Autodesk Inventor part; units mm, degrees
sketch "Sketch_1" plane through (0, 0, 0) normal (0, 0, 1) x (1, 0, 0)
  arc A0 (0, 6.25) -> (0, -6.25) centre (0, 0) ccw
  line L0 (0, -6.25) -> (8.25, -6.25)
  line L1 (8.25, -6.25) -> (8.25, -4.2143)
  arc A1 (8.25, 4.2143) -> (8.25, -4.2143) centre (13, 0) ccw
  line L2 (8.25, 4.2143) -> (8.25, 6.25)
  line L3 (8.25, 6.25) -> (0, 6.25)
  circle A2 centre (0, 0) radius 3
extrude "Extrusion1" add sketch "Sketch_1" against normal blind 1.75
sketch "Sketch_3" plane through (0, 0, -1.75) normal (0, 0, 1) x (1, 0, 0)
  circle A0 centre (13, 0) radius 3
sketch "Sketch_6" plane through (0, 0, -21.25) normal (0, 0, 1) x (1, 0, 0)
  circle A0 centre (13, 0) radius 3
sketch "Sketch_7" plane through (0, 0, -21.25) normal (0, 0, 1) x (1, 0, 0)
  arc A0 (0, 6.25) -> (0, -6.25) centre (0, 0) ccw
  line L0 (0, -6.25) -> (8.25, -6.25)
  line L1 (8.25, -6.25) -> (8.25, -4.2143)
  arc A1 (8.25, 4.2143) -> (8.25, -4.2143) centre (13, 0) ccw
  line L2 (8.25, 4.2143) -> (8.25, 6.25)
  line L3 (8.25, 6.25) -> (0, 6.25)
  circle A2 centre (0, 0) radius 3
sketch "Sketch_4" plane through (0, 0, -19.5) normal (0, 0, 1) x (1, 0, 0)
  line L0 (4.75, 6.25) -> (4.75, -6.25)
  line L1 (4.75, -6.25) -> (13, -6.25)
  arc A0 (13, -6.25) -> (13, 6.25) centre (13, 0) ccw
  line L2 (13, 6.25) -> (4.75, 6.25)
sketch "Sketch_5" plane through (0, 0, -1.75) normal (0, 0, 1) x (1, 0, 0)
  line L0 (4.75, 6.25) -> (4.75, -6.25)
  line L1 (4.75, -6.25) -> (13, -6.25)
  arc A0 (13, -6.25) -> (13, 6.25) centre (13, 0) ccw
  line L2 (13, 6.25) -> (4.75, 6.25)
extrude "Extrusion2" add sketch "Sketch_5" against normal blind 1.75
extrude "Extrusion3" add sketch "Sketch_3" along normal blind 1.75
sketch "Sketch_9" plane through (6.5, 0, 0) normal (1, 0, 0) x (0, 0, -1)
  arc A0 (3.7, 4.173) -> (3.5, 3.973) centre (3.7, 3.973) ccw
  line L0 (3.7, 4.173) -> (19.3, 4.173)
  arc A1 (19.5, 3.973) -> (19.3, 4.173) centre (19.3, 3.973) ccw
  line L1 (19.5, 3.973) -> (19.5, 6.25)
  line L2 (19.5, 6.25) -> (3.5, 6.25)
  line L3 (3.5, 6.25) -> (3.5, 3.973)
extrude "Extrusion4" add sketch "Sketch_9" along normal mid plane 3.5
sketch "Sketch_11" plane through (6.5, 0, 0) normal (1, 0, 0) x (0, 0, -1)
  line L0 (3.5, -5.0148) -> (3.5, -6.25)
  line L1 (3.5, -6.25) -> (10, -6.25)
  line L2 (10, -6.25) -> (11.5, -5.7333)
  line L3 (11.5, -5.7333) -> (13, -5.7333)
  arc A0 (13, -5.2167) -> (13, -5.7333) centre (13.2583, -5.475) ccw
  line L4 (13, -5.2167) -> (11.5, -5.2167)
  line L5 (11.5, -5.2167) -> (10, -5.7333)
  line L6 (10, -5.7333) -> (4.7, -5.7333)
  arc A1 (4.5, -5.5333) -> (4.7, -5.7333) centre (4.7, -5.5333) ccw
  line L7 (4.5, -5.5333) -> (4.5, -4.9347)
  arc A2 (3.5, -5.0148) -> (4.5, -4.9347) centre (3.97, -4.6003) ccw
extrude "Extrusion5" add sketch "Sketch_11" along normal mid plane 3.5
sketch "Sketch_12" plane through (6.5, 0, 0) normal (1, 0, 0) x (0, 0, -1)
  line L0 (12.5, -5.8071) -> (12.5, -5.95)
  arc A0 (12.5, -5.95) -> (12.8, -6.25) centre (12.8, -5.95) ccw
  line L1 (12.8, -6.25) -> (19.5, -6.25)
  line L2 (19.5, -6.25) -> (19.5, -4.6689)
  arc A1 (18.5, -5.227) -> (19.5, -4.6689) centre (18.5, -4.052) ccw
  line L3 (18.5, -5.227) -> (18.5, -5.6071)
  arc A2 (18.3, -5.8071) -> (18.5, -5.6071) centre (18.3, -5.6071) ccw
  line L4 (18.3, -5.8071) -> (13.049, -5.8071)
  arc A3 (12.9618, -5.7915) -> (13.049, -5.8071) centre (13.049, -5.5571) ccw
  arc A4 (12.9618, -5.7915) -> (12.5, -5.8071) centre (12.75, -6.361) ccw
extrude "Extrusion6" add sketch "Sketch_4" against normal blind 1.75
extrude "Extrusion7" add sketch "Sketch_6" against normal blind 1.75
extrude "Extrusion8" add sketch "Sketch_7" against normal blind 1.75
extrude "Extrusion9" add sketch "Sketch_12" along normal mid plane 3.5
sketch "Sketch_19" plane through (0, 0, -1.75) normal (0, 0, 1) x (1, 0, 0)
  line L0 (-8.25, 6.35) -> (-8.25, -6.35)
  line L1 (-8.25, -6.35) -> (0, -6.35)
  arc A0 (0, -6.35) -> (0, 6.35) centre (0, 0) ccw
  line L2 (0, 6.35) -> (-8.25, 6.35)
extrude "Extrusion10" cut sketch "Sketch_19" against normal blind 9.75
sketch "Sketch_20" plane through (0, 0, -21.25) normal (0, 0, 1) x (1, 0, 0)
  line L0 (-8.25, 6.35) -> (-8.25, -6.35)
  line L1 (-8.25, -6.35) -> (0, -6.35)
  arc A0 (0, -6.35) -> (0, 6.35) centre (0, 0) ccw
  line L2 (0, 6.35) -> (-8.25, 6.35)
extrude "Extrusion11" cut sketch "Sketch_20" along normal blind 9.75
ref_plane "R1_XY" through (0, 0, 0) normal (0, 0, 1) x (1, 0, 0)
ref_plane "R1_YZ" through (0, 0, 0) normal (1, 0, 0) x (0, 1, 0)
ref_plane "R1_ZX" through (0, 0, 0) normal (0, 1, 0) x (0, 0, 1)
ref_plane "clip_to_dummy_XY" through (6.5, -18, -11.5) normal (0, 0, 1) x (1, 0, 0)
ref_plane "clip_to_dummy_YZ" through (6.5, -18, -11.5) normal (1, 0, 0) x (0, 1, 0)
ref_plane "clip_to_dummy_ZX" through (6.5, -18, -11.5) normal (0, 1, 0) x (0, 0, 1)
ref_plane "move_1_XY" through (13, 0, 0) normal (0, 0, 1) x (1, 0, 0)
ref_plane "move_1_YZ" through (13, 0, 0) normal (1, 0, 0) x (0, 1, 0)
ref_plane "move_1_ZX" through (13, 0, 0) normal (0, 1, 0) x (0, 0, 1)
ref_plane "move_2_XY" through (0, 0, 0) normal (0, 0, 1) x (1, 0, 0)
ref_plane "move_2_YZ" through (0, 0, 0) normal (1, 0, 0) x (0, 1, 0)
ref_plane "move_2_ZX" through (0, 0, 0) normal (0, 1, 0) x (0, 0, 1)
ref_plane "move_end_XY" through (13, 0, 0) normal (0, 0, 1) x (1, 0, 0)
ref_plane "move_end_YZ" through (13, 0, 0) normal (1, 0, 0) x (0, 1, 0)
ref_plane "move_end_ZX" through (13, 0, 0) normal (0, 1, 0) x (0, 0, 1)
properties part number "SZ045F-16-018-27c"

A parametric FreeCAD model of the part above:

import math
import FreeCAD as App
import Part
import Sketcher

doc = App.newDocument("Part")
body = doc.addObject("PartDesign::Body", "Body")

# Sketch on XY plane
sketch1 = doc.addObject("Sketcher::SketchObject", "Sketch")
body.addObject(sketch1)
sketch1.AttachmentSupport = (doc.XY_Plane, [""])
sketch1.MapMode = "FlatFace"
sketch1.addGeometry([
    Part.LineSegment(App.Vector(8.2, 6.2, 0), App.Vector(0, 6.2, 0)),  # 0
    Part.ArcOfCircle(Part.Circle(App.Vector(0, 0, 0), App.Vector(0, 0, 1), 6.2), math.radians(90), math.radians(270)),  # 1
    Part.LineSegment(App.Vector(0, -6.2, 0), App.Vector(8.2, -6.2, 0)),  # 2
    Part.LineSegment(App.Vector(8.2, -6.2, 0), App.Vector(8.2, -4.2, 0)),  # 3
    Part.ArcOfCircle(Part.Circle(App.Vector(13, 0, 0), App.Vector(0, 0, 1), 6.4), math.radians(138), math.radians(222)),  # 4
    Part.LineSegment(App.Vector(8.2, 4.2, 0), App.Vector(8.2, 6.2, 0)),  # 5
    Part.Circle(App.Vector(0, 0, 0), App.Vector(0, 0, 1), 3),  # 6
], False)
sketch1.addConstraint([
    Sketcher.Constraint("Tangent", 0, 2, 1, 1),
    Sketcher.Constraint("Tangent", 1, 2, 2, 1),
    Sketcher.Constraint("Coincident", 2, 2, 3, 1),
    Sketcher.Constraint("Coincident", 3, 2, 4, 2),
    Sketcher.Constraint("Coincident", 4, 1, 5, 1),
    Sketcher.Constraint("Coincident", 5, 2, 0, 1),
    Sketcher.Constraint("Horizontal", 0),
    Sketcher.Constraint("Horizontal", 2),
    Sketcher.Constraint("Vertical", 3),
    Sketcher.Constraint("Vertical", 5),
    Sketcher.Constraint("Coincident", 1, 3, -1, 1),
    Sketcher.Constraint("Coincident", 6, 3, -1, 1),
    Sketcher.Constraint("Symmetric", 3, 2, 4, 1, -1),
    Sketcher.Constraint("Diameter", 6, 6.0),
    Sketcher.Constraint("Radius", 1, 6.25),
    Sketcher.Constraint("Radius", 4, 6.35),
    Sketcher.Constraint("DistanceX", -1, 1, 4, 3, 13.0),
    Sketcher.Constraint("DistanceX", 0, 2, 0, 1, 8.25),
])
pad1 = doc.addObject("PartDesign::Pad", "Pad")
body.addObject(pad1)
pad1.Profile = sketch1
pad1.Length = 1.75
pad1.Reversed = True

# Sketch on XY plane
sketch2 = doc.addObject("Sketcher::SketchObject", "Sketch001")
body.addObject(sketch2)
sketch2.AttachmentSupport = (doc.XY_Plane, [""])
sketch2.MapMode = "FlatFace"
sketch2.AttachmentOffset = App.Placement(App.Vector(0, 0, -1.75), App.Rotation())
sketch2.addGeometry([
    Part.LineSegment(App.Vector(13, 6, 0), App.Vector(5, 6, 0)),
    Part.LineSegment(App.Vector(5, 6, 0), App.Vector(5, -6, 0)),
    Part.LineSegment(App.Vector(5, -6, 0), App.Vector(13, -6, 0)),
    Part.ArcOfCircle(Part.Circle(App.Vector(13, 0, 0), App.Vector(0, 0, 1), 6), math.radians(-90), math.radians(90)),
], False)
sketch2.addConstraint([
    Sketcher.Constraint("Coincident", 0, 2, 1, 1),
    Sketcher.Constraint("Coincident", 1, 2, 2, 1),
    Sketcher.Constraint("Tangent", 2, 2, 3, 1),
    Sketcher.Constraint("Tangent", 3, 2, 0, 1),
    Sketcher.Constraint("Horizontal", 0),
    Sketcher.Constraint("Vertical", 1),
    Sketcher.Constraint("Horizontal", 2),
    Sketcher.Constraint("PointOnObject", 3, 3, -1),
    Sketcher.Constraint("Radius", 3, 6.25),
    Sketcher.Constraint("DistanceX", -1, 1, 3, 3, 13.0),
    Sketcher.Constraint("DistanceX", 0, 2, 0, 1, 8.25),
])
pad2 = doc.addObject("PartDesign::Pad", "Pad001")
body.addObject(pad2)
pad2.Profile = sketch2
pad2.Length = 1.75
pad2.Reversed = True

# Sketch on XY plane
sketch3 = doc.addObject("Sketcher::SketchObject", "Sketch002")
body.addObject(sketch3)
sketch3.AttachmentSupport = (doc.XY_Plane, [""])
sketch3.MapMode = "FlatFace"
sketch3.AttachmentOffset = App.Placement(App.Vector(0, 0, -1.75), App.Rotation())
sketch3.addGeometry(Part.Circle(App.Vector(13, 0, 0), App.Vector(0, 0, 1), 3), False)
sketch3.addConstraint([
    Sketcher.Constraint("PointOnObject", 0, 3, -1),
    Sketcher.Constraint("Diameter", 0, 6.0),
    Sketcher.Constraint("DistanceX", -1, 1, 0, 3, 13.0),
])
pad3 = doc.addObject("PartDesign::Pad", "Pad002")
body.addObject(pad3)
pad3.Profile = sketch3
pad3.Length = 1.75

# Sketch on YZ plane
sketch4 = doc.addObject("Sketcher::SketchObject", "Sketch003")
body.addObject(sketch4)
sketch4.AttachmentSupport = (doc.YZ_Plane, [""])
sketch4.MapMode = "FlatFace"
sketch4.AttachmentOffset = App.Placement(App.Vector(0, 0, 6.5), App.Rotation())
sketch4.addGeometry([
    Part.ArcOfCircle(Part.Circle(App.Vector(3.97, -3.7, 0), App.Vector(0, 0, 1), 0.2), math.radians(0), math.radians(90)),  # 0
    Part.LineSegment(App.Vector(4.17, -3.7, 0), App.Vector(4.17, -19.3, 0)),  # 1
    Part.ArcOfCircle(Part.Circle(App.Vector(3.97, -19.3, 0), App.Vector(0, 0, 1), 0.2), math.radians(-90), math.radians(0)),  # 2
    Part.LineSegment(App.Vector(3.97, -19.5, 0), App.Vector(6.25, -19.5, 0)),  # 3
    Part.LineSegment(App.Vector(6.25, -19.5, 0), App.Vector(6.25, -3.5, 0)),  # 4
    Part.LineSegment(App.Vector(6.25, -3.5, 0), App.Vector(3.97, -3.5, 0)),  # 5
], False)
sketch4.addConstraint([
    Sketcher.Constraint("Tangent", 0, 1, 1, 1),
    Sketcher.Constraint("Tangent", 1, 2, 2, 2),
    Sketcher.Constraint("Tangent", 2, 1, 3, 1),
    Sketcher.Constraint("Coincident", 3, 2, 4, 1),
    Sketcher.Constraint("Coincident", 4, 2, 5, 1),
    Sketcher.Constraint("Tangent", 5, 2, 0, 2),
    Sketcher.Constraint("Vertical", 1),
    Sketcher.Constraint("Horizontal", 3),
    Sketcher.Constraint("Vertical", 4),
    Sketcher.Constraint("Horizontal", 5),
    Sketcher.Constraint("Equal", 0, 2),
    Sketcher.Constraint("Radius", 0, 0.2),
    Sketcher.Constraint("DistanceY", 4, 1, 4, 2, 16.0),
    Sketcher.Constraint("DistanceY", 0, 3, -1, 1, 3.7),
    Sketcher.Constraint("DistanceX", 3, 1, 3, 2, 2.277),
    Sketcher.Constraint("DistanceX", -1, 1, 3, 2, 6.25),
])
pad4 = doc.addObject("PartDesign::Pad", "Pad003")
body.addObject(pad4)
pad4.Profile = sketch4
pad4.Length = 3.5
pad4.Midplane = True

# Sketch on YZ plane
sketch5 = doc.addObject("Sketcher::SketchObject", "Sketch004")
body.addObject(sketch5)
sketch5.AttachmentSupport = (doc.YZ_Plane, [""])
sketch5.MapMode = "FlatFace"
sketch5.AttachmentOffset = App.Placement(App.Vector(0, 0, 6.5), App.Rotation())
sketch5.addGeometry([
    Part.ArcOfCircle(Part.Circle(App.Vector(-4.6, -3.97, 0), App.Vector(0, 0, 1), 0.63), math.radians(131), math.radians(238)),  # 0
    Part.LineSegment(App.Vector(-5.01, -3.5, 0), App.Vector(-6.25, -3.5, 0)),  # 1
    Part.LineSegment(App.Vector(-6.25, -3.5, 0), App.Vector(-6.25, -10, 0)),  # 2
    Part.LineSegment(App.Vector(-6.25, -10, 0), App.Vector(-5.73, -11.5, 0)),  # 3
    Part.LineSegment(App.Vector(-5.73, -11.5, 0), App.Vector(-5.73, -13, 0)),  # 4
    Part.ArcOfCircle(Part.Circle(App.Vector(-5.47, -13.26, 0), App.Vector(0, 0, 1), 0.37), math.radians(45), math.radians(135)),  # 5
    Part.LineSegment(App.Vector(-5.22, -13, 0), App.Vector(-5.22, -11.5, 0)),  # 6
    Part.LineSegment(App.Vector(-5.22, -11.5, 0), App.Vector(-5.73, -10, 0)),  # 7
    Part.LineSegment(App.Vector(-5.73, -10, 0), App.Vector(-5.73, -4.7, 0)),  # 8
    Part.ArcOfCircle(Part.Circle(App.Vector(-5.53, -4.7, 0), App.Vector(0, 0, 1), 0.2), math.radians(90), math.radians(180)),  # 9
    Part.LineSegment(App.Vector(-5.53, -4.5, 0), App.Vector(-4.93, -4.5, 0)),  # 10
], False)
sketch5.addConstraint([
    Sketcher.Constraint("Coincident", 0, 1, 1, 1),
    Sketcher.Constraint("Coincident", 1, 2, 2, 1),
    Sketcher.Constraint("Coincident", 2, 2, 3, 1),
    Sketcher.Constraint("Coincident", 3, 2, 4, 1),
    Sketcher.Constraint("Coincident", 4, 2, 5, 2),
    Sketcher.Constraint("Coincident", 5, 1, 6, 1),
    Sketcher.Constraint("Coincident", 6, 2, 7, 1),
    Sketcher.Constraint("Coincident", 7, 2, 8, 1),
    Sketcher.Constraint("Tangent", 8, 2, 9, 2),
    Sketcher.Constraint("Tangent", 9, 1, 10, 1),
    Sketcher.Constraint("Coincident", 10, 2, 0, 2),
    Sketcher.Constraint("Horizontal", 1),
    Sketcher.Constraint("Vertical", 2),
    Sketcher.Constraint("Vertical", 4),
    Sketcher.Constraint("Vertical", 6),
    Sketcher.Constraint("Vertical", 8),
    Sketcher.Constraint("Horizontal", 10),
    Sketcher.Constraint("Parallel", 3, 7),
    Sketcher.Constraint("Horizontal", 4, 2, 5, 1),
    Sketcher.Constraint("Horizontal", 3, 2, 6, 2),
    Sketcher.Constraint("Horizontal", 2, 2, 7, 2),
    Sketcher.Constraint("Vertical", 4, 2, 7, 2),
    Sketcher.Constraint("Radius", 9, 0.2),
    Sketcher.Constraint("DistanceY", 2, 2, 2, 1, 6.5),
    Sketcher.Constraint("DistanceY", 4, 2, 4, 1, 1.5),
    Sketcher.Constraint("DistanceY", 8, 1, 8, 2, 5.3),
    Sketcher.Constraint("DistanceY", 2, 2, -1, 1, 10.0),
    Sketcher.Constraint("DistanceY", 4, 2, -1, 1, 13.0),
    Sketcher.Constraint("Radius", 0, 0.6267),
    Sketcher.Constraint("Radius", 5, 0.3653),
    Sketcher.Constraint("DistanceY", 0, 3, -1, 1, 3.97),
    Sketcher.Constraint("DistanceX", 1, 2, -1, 1, 6.25),
    Sketcher.Constraint("DistanceX", 1, 2, 1, 1, 1.2352),
    Sketcher.Constraint("DistanceX", 10, 1, 10, 2, 0.5986),
])
pad5 = doc.addObject("PartDesign::Pad", "Pad004")
body.addObject(pad5)
pad5.Profile = sketch5
pad5.Length = 3.5
pad5.Midplane = True

# Sketch on XY plane
sketch6 = doc.addObject("Sketcher::SketchObject", "Sketch005")
body.addObject(sketch6)
sketch6.AttachmentSupport = (doc.XY_Plane, [""])
sketch6.MapMode = "FlatFace"
sketch6.AttachmentOffset = App.Placement(App.Vector(0, 0, -19.5), App.Rotation())
sketch6.addGeometry([
    Part.LineSegment(App.Vector(13, 6, 0), App.Vector(5, 6, 0)),
    Part.LineSegment(App.Vector(5, 6, 0), App.Vector(5, -6, 0)),
    Part.LineSegment(App.Vector(5, -6, 0), App.Vector(13, -6, 0)),
    Part.ArcOfCircle(Part.Circle(App.Vector(13, 0, 0), App.Vector(0, 0, 1), 6), math.radians(-90), math.radians(90)),
], False)
sketch6.addConstraint([
    Sketcher.Constraint("Coincident", 0, 2, 1, 1),
    Sketcher.Constraint("Coincident", 1, 2, 2, 1),
    Sketcher.Constraint("Tangent", 2, 2, 3, 1),
    Sketcher.Constraint("Tangent", 3, 2, 0, 1),
    Sketcher.Constraint("Horizontal", 0),
    Sketcher.Constraint("Vertical", 1),
    Sketcher.Constraint("Horizontal", 2),
    Sketcher.Constraint("PointOnObject", 3, 3, -1),
    Sketcher.Constraint("Radius", 3, 6.25),
    Sketcher.Constraint("DistanceX", -1, 1, 3, 3, 13.0),
    Sketcher.Constraint("DistanceX", 0, 2, 0, 1, 8.25),
])
pad6 = doc.addObject("PartDesign::Pad", "Pad005")
body.addObject(pad6)
pad6.Profile = sketch6
pad6.Length = 1.75
pad6.Reversed = True

# Sketch on XY plane
sketch7 = doc.addObject("Sketcher::SketchObject", "Sketch006")
body.addObject(sketch7)
sketch7.AttachmentSupport = (doc.XY_Plane, [""])
sketch7.MapMode = "FlatFace"
sketch7.AttachmentOffset = App.Placement(App.Vector(0, 0, -21.25), App.Rotation())
sketch7.addGeometry(Part.Circle(App.Vector(13, 0, 0), App.Vector(0, 0, 1), 3), False)
sketch7.addConstraint([
    Sketcher.Constraint("PointOnObject", 0, 3, -1),
    Sketcher.Constraint("Diameter", 0, 6.0),
    Sketcher.Constraint("DistanceX", -1, 1, 0, 3, 13.0),
])
pad7 = doc.addObject("PartDesign::Pad", "Pad006")
body.addObject(pad7)
pad7.Profile = sketch7
pad7.Length = 1.75
pad7.Reversed = True

# Sketch on XY plane
sketch8 = doc.addObject("Sketcher::SketchObject", "Sketch007")
body.addObject(sketch8)
sketch8.AttachmentSupport = (doc.XY_Plane, [""])
sketch8.MapMode = "FlatFace"
sketch8.AttachmentOffset = App.Placement(App.Vector(0, 0, -21.25), App.Rotation())
sketch8.addGeometry([
    Part.LineSegment(App.Vector(8.2, 6.2, 0), App.Vector(0, 6.2, 0)),  # 0
    Part.ArcOfCircle(Part.Circle(App.Vector(0, 0, 0), App.Vector(0, 0, 1), 6.2), math.radians(90), math.radians(270)),  # 1
    Part.LineSegment(App.Vector(0, -6.2, 0), App.Vector(8.2, -6.2, 0)),  # 2
    Part.LineSegment(App.Vector(8.2, -6.2, 0), App.Vector(8.2, -4.2, 0)),  # 3
    Part.ArcOfCircle(Part.Circle(App.Vector(13, 0, 0), App.Vector(0, 0, 1), 6.4), math.radians(138), math.radians(222)),  # 4
    Part.LineSegment(App.Vector(8.2, 4.2, 0), App.Vector(8.2, 6.2, 0)),  # 5
    Part.Circle(App.Vector(0, 0, 0), App.Vector(0, 0, 1), 3),  # 6
], False)
sketch8.addConstraint([
    Sketcher.Constraint("Tangent", 0, 2, 1, 1),
    Sketcher.Constraint("Tangent", 1, 2, 2, 1),
    Sketcher.Constraint("Coincident", 2, 2, 3, 1),
    Sketcher.Constraint("Coincident", 3, 2, 4, 2),
    Sketcher.Constraint("Coincident", 4, 1, 5, 1),
    Sketcher.Constraint("Coincident", 5, 2, 0, 1),
    Sketcher.Constraint("Horizontal", 0),
    Sketcher.Constraint("Horizontal", 2),
    Sketcher.Constraint("Vertical", 3),
    Sketcher.Constraint("Vertical", 5),
    Sketcher.Constraint("Coincident", 1, 3, -1, 1),
    Sketcher.Constraint("Coincident", 6, 3, -1, 1),
    Sketcher.Constraint("Symmetric", 3, 2, 4, 1, -1),
    Sketcher.Constraint("Diameter", 6, 6.0),
    Sketcher.Constraint("Radius", 1, 6.25),
    Sketcher.Constraint("Radius", 4, 6.35),
    Sketcher.Constraint("DistanceX", -1, 1, 4, 3, 13.0),
    Sketcher.Constraint("DistanceX", 0, 2, 0, 1, 8.25),
])
pad8 = doc.addObject("PartDesign::Pad", "Pad007")
body.addObject(pad8)
pad8.Profile = sketch8
pad8.Length = 1.75
pad8.Reversed = True

# Sketch on YZ plane
sketch9 = doc.addObject("Sketcher::SketchObject", "Sketch008")
body.addObject(sketch9)
sketch9.AttachmentSupport = (doc.YZ_Plane, [""])
sketch9.MapMode = "FlatFace"
sketch9.AttachmentOffset = App.Placement(App.Vector(0, 0, 6.5), App.Rotation())
sketch9.addGeometry([
    Part.ArcOfCircle(Part.Circle(App.Vector(-6.36, -12.75, 0), App.Vector(0, 0, 1), 0.61), math.radians(-20), math.radians(24)),  # 0
    Part.LineSegment(App.Vector(-5.81, -12.5, 0), App.Vector(-5.95, -12.5, 0)),  # 1
    Part.ArcOfCircle(Part.Circle(App.Vector(-5.95, -12.8, 0), App.Vector(0, 0, 1), 0.3), math.radians(90), math.radians(180)),  # 2
    Part.LineSegment(App.Vector(-6.25, -12.8, 0), App.Vector(-6.25, -19.5, 0)),  # 3
    Part.LineSegment(App.Vector(-6.25, -19.5, 0), App.Vector(-4.67, -19.5, 0)),  # 4
    Part.ArcOfCircle(Part.Circle(App.Vector(-4.05, -18.5, 0), App.Vector(0, 0, 1), 1.18), math.radians(180), math.radians(238)),  # 5
    Part.LineSegment(App.Vector(-5.23, -18.5, 0), App.Vector(-5.61, -18.5, 0)),  # 6
    Part.ArcOfCircle(Part.Circle(App.Vector(-5.61, -18.3, 0), App.Vector(0, 0, 1), 0.2), math.radians(180), math.radians(270)),  # 7
    Part.LineSegment(App.Vector(-5.81, -18.3, 0), App.Vector(-5.81, -13.05, 0)),  # 8
    Part.ArcOfCircle(Part.Circle(App.Vector(-5.56, -13.05, 0), App.Vector(0, 0, 1), 0.25), math.radians(160), math.radians(180)),  # 9
], False)
sketch9.addConstraint([
    Sketcher.Constraint("Coincident", 0, 2, 1, 1),
    Sketcher.Constraint("Tangent", 1, 2, 2, 1),
    Sketcher.Constraint("Tangent", 2, 2, 3, 1),
    Sketcher.Constraint("Coincident", 3, 2, 4, 1),
    Sketcher.Constraint("Coincident", 4, 2, 5, 2),
    Sketcher.Constraint("Coincident", 5, 1, 6, 1),
    Sketcher.Constraint("Tangent", 6, 2, 7, 2),
    Sketcher.Constraint("Tangent", 7, 1, 8, 1),
    Sketcher.Constraint("Coincident", 8, 2, 9, 2),
    Sketcher.Constraint("Coincident", 9, 1, 0, 1),
    Sketcher.Constraint("Horizontal", 1),
    Sketcher.Constraint("Vertical", 3),
    Sketcher.Constraint("Horizontal", 4),
    Sketcher.Constraint("Horizontal", 6),
    Sketcher.Constraint("Vertical", 8),
    Sketcher.Constraint("Vertical", 0, 2, 7, 1),
    Sketcher.Constraint("Radius", 2, 0.3),
    Sketcher.Constraint("Radius", 7, 0.2),
    Sketcher.Constraint("DistanceY", 3, 2, 3, 1, 6.7),
    Sketcher.Constraint("Radius", 5, 1.175),
    Sketcher.Constraint("DistanceY", 5, 3, 0, 2, 6.0),
    Sketcher.Constraint("DistanceY", 4, 2, 5, 1, 1.0),
    Sketcher.Constraint("DistanceX", 6, 2, 6, 1, 0.38),
    Sketcher.Constraint("DistanceY", 2, 3, -1, 1, 12.8),
    Sketcher.Constraint("Radius", 0, 0.6076),
    Sketcher.Constraint("Radius", 9, 0.2471),
    Sketcher.Constraint("DistanceX", 1, 2, 1, 1, 0.143),
    Sketcher.Constraint("DistanceY", 8, 1, 8, 2, 5.251),
    Sketcher.Constraint("DistanceY", 0, 3, -1, 1, 12.75),
    Sketcher.Constraint("DistanceX", 2, 3, -1, 1, 5.95),
    Sketcher.Constraint("DistanceX", 9, 1, -1, 1, 5.7915),
])
pad9 = doc.addObject("PartDesign::Pad", "Pad008")
body.addObject(pad9)
pad9.Profile = sketch9
pad9.Length = 3.5
pad9.Midplane = True

# Sketch on XY plane
sketch10 = doc.addObject("Sketcher::SketchObject", "Sketch009")
body.addObject(sketch10)
sketch10.AttachmentSupport = (doc.XY_Plane, [""])
sketch10.MapMode = "FlatFace"
sketch10.AttachmentOffset = App.Placement(App.Vector(0, 0, -1.75), App.Rotation())
sketch10.addGeometry([
    Part.LineSegment(App.Vector(0, 6, 0), App.Vector(-8, 6, 0)),
    Part.LineSegment(App.Vector(-8, 6, 0), App.Vector(-8, -6, 0)),
    Part.LineSegment(App.Vector(-8, -6, 0), App.Vector(0, -6, 0)),
    Part.ArcOfCircle(Part.Circle(App.Vector(0, 0, 0), App.Vector(0, 0, 1), 6), math.radians(-90), math.radians(90)),
], False)
sketch10.addConstraint([
    Sketcher.Constraint("Coincident", 0, 2, 1, 1),
    Sketcher.Constraint("Coincident", 1, 2, 2, 1),
    Sketcher.Constraint("Tangent", 2, 2, 3, 1),
    Sketcher.Constraint("Tangent", 3, 2, 0, 1),
    Sketcher.Constraint("Horizontal", 0),
    Sketcher.Constraint("Vertical", 1),
    Sketcher.Constraint("Horizontal", 2),
    Sketcher.Constraint("Coincident", 3, 3, -1, 1),
    Sketcher.Constraint("Radius", 3, 6.35),
    Sketcher.Constraint("DistanceX", 0, 2, 0, 1, 8.25),
])
pocket1 = doc.addObject("PartDesign::Pocket", "Pocket")
body.addObject(pocket1)
pocket1.Profile = sketch10
pocket1.Length = 9.75

# Sketch on XY plane
sketch11 = doc.addObject("Sketcher::SketchObject", "Sketch010")
body.addObject(sketch11)
sketch11.AttachmentSupport = (doc.XY_Plane, [""])
sketch11.MapMode = "FlatFace"
sketch11.AttachmentOffset = App.Placement(App.Vector(0, 0, -21.25), App.Rotation())
sketch11.addGeometry([
    Part.LineSegment(App.Vector(0, 6, 0), App.Vector(-8, 6, 0)),
    Part.LineSegment(App.Vector(-8, 6, 0), App.Vector(-8, -6, 0)),
    Part.LineSegment(App.Vector(-8, -6, 0), App.Vector(0, -6, 0)),
    Part.ArcOfCircle(Part.Circle(App.Vector(0, 0, 0), App.Vector(0, 0, 1), 6), math.radians(-90), math.radians(90)),
], False)
sketch11.addConstraint([
    Sketcher.Constraint("Coincident", 0, 2, 1, 1),
    Sketcher.Constraint("Coincident", 1, 2, 2, 1),
    Sketcher.Constraint("Tangent", 2, 2, 3, 1),
    Sketcher.Constraint("Tangent", 3, 2, 0, 1),
    Sketcher.Constraint("Horizontal", 0),
    Sketcher.Constraint("Vertical", 1),
    Sketcher.Constraint("Horizontal", 2),
    Sketcher.Constraint("Coincident", 3, 3, -1, 1),
    Sketcher.Constraint("Radius", 3, 6.35),
    Sketcher.Constraint("DistanceX", 0, 2, 0, 1, 8.25),
])
pocket2 = doc.addObject("PartDesign::Pocket", "Pocket001")
body.addObject(pocket2)
pocket2.Profile = sketch11
pocket2.Length = 9.75
pocket2.Reversed = True

doc.recompute()
